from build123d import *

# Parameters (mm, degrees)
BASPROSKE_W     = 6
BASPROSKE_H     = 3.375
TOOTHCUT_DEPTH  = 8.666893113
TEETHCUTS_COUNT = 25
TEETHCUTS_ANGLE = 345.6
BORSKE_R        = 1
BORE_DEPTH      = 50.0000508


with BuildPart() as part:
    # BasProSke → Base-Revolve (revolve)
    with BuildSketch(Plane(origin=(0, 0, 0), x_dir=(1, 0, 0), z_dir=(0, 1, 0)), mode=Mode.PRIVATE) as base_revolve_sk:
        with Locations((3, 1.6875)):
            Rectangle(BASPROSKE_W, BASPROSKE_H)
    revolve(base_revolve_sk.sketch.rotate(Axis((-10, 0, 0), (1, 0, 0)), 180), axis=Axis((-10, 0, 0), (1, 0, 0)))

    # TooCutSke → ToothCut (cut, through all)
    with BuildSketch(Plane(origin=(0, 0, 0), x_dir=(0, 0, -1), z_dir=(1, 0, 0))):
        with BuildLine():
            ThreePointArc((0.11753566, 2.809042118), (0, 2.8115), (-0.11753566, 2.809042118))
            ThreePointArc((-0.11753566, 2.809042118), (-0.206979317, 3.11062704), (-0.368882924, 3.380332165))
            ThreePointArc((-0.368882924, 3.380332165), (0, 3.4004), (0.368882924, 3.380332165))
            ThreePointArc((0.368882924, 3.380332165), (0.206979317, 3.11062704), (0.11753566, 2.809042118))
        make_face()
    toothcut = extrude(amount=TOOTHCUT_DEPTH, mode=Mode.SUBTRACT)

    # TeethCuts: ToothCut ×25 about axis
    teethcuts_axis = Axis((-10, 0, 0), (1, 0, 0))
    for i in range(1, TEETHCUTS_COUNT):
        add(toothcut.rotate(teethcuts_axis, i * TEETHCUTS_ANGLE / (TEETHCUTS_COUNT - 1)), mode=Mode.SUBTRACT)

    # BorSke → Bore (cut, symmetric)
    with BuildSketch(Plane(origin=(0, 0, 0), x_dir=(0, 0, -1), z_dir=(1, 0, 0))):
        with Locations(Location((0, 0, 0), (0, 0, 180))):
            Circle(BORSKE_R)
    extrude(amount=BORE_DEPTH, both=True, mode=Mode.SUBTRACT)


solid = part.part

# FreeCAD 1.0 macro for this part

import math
import FreeCAD as App
import Part
import Sketcher
from FreeCAD import Vector
Q = App.Units.Quantity

doc = App.newDocument("Part")
body = doc.addObject("PartDesign::Body", "Body")

# Sketch on XZ plane
sketch1 = body.newObject("Sketcher::SketchObject", "Sketch")
sketch1.AttachmentSupport = (doc.getObject("XZ_Plane"), [""])
sketch1.MapMode = "FlatFace"
sketch1.addGeometry([
    Part.LineSegment(Vector(0, -3.375, 0), Vector(0, 0, 0)),
    Part.LineSegment(Vector(0, 0, 0), Vector(6, 0, 0)),
    Part.LineSegment(Vector(6, 0, 0), Vector(6, -3.375, 0)),
    Part.LineSegment(Vector(6, -3.375, 0), Vector(0, -3.375, 0)),
], False)
sketch1.addConstraint([
    Sketcher.Constraint("Coincident", 0, 2, 1, 1),
    Sketcher.Constraint("Coincident", 1, 2, 2, 1),
    Sketcher.Constraint("Coincident", 2, 2, 3, 1),
    Sketcher.Constraint("Coincident", 3, 2, 0, 1),
    Sketcher.Constraint("Vertical", 0),
    Sketcher.Constraint("Horizontal", 1),
    Sketcher.Constraint("Vertical", 2),
    Sketcher.Constraint("Horizontal", 3),
    Sketcher.Constraint("Coincident", 0, 2, -1, 1),
    Sketcher.Constraint("DistanceX", 1, 1, 1, 2, Q("6 mm")),
    Sketcher.Constraint("DistanceY", 0, 1, 0, 2, Q("3.375 mm")),
])
revolution = body.newObject("PartDesign::Revolution", "Revolution")
revolution.Profile = sketch1
revolution.ReferenceAxis = (sketch1, ["H_Axis"])
revolution.Angle = 360

# Sketch on YZ plane
sketch2 = body.newObject("Sketcher::SketchObject", "Sketch001")
sketch2.AttachmentSupport = (doc.getObject("YZ_Plane"), [""])
sketch2.MapMode = "FlatFace"
sketch2.addGeometry([
    Part.ArcOfCircle(Part.Circle(Vector(0, 0, 0), Vector(0, 0, 1), 2.8115), math.radians(-2.395966), math.radians(2.395966)),
    Part.ArcOfCircle(Part.Circle(Vector(2.607238, -1.351138, 0), Vector(0, 0, 1), 1.25), math.radians(51.795115), math.radians(80.709317)),
    Part.ArcOfCircle(Part.Circle(Vector(0, 0, 0), Vector(0, 0, 1), 3.4004), math.radians(-6.227829), math.radians(6.227829)),
    Part.ArcOfCircle(Part.Circle(Vector(2.607238, 1.351138, 0), Vector(0, 0, 1), 1.25), math.radians(-80.709317), math.radians(-51.795115)),
], False)
sketch2.addConstraint([
    Sketcher.Constraint("Coincident", 0, 1, 1, 2),
    Sketcher.Constraint("Coincident", 1, 1, 2, 1),
    Sketcher.Constraint("Coincident", 2, 2, 3, 2),
    Sketcher.Constraint("Coincident", 3, 1, 0, 2),
    Sketcher.Constraint("Coincident", 0, 3, -1, 1),
    Sketcher.Constraint("Coincident", 2, 3, -1, 1),
    Sketcher.Constraint("Equal", 1, 3),
    Sketcher.Constraint("Symmetric", 1, 3, 3, 3, -1),
    Sketcher.Constraint("Radius", 1, Q("1.25 mm")),
    Sketcher.Constraint("Radius", 0, Q("2.8115 mm")),
    Sketcher.Constraint("Radius", 2, Q("3.4004 mm")),
    Sketcher.Constraint("DistanceY", 1, 3, -1, 1, Q("1.351138 mm")),
    Sketcher.Constraint("DistanceX", 0, 3, 1, 3, Q("2.607238 mm")),
])
pocket1 = body.newObject("PartDesign::Pocket", "Pocket")
pocket1.Profile = sketch2
pocket1.Type = "ThroughAll"
pocket1.Reversed = True
doc.recompute()

polarpattern = body.newObject("PartDesign::PolarPattern", "PolarPattern")
polarpattern.Originals = [pocket1]
polarpattern.Axis = (doc.getObject("X_Axis"), [""])
polarpattern.Angle = 360
polarpattern.Occurrences = 25
body.Tip = polarpattern

# Sketch on YZ plane
sketch3 = body.newObject("Sketcher::SketchObject", "Sketch002")
sketch3.AttachmentSupport = (doc.getObject("YZ_Plane"), [""])
sketch3.MapMode = "FlatFace"
sketch3.addGeometry(Part.Circle(Vector(0, 0, 0), Vector(0, 0, 1), 1), False)
sketch3.addConstraint([
    Sketcher.Constraint("Coincident", 0, 3, -1, 1),
    Sketcher.Constraint("Diameter", 0, Q("2 mm")),
])
pocket2 = body.newObject("PartDesign::Pocket", "Pocket001")
pocket2.Profile = sketch3
pocket2.Length = 100.000102
pocket2.Midplane = True

doc.recompute()
